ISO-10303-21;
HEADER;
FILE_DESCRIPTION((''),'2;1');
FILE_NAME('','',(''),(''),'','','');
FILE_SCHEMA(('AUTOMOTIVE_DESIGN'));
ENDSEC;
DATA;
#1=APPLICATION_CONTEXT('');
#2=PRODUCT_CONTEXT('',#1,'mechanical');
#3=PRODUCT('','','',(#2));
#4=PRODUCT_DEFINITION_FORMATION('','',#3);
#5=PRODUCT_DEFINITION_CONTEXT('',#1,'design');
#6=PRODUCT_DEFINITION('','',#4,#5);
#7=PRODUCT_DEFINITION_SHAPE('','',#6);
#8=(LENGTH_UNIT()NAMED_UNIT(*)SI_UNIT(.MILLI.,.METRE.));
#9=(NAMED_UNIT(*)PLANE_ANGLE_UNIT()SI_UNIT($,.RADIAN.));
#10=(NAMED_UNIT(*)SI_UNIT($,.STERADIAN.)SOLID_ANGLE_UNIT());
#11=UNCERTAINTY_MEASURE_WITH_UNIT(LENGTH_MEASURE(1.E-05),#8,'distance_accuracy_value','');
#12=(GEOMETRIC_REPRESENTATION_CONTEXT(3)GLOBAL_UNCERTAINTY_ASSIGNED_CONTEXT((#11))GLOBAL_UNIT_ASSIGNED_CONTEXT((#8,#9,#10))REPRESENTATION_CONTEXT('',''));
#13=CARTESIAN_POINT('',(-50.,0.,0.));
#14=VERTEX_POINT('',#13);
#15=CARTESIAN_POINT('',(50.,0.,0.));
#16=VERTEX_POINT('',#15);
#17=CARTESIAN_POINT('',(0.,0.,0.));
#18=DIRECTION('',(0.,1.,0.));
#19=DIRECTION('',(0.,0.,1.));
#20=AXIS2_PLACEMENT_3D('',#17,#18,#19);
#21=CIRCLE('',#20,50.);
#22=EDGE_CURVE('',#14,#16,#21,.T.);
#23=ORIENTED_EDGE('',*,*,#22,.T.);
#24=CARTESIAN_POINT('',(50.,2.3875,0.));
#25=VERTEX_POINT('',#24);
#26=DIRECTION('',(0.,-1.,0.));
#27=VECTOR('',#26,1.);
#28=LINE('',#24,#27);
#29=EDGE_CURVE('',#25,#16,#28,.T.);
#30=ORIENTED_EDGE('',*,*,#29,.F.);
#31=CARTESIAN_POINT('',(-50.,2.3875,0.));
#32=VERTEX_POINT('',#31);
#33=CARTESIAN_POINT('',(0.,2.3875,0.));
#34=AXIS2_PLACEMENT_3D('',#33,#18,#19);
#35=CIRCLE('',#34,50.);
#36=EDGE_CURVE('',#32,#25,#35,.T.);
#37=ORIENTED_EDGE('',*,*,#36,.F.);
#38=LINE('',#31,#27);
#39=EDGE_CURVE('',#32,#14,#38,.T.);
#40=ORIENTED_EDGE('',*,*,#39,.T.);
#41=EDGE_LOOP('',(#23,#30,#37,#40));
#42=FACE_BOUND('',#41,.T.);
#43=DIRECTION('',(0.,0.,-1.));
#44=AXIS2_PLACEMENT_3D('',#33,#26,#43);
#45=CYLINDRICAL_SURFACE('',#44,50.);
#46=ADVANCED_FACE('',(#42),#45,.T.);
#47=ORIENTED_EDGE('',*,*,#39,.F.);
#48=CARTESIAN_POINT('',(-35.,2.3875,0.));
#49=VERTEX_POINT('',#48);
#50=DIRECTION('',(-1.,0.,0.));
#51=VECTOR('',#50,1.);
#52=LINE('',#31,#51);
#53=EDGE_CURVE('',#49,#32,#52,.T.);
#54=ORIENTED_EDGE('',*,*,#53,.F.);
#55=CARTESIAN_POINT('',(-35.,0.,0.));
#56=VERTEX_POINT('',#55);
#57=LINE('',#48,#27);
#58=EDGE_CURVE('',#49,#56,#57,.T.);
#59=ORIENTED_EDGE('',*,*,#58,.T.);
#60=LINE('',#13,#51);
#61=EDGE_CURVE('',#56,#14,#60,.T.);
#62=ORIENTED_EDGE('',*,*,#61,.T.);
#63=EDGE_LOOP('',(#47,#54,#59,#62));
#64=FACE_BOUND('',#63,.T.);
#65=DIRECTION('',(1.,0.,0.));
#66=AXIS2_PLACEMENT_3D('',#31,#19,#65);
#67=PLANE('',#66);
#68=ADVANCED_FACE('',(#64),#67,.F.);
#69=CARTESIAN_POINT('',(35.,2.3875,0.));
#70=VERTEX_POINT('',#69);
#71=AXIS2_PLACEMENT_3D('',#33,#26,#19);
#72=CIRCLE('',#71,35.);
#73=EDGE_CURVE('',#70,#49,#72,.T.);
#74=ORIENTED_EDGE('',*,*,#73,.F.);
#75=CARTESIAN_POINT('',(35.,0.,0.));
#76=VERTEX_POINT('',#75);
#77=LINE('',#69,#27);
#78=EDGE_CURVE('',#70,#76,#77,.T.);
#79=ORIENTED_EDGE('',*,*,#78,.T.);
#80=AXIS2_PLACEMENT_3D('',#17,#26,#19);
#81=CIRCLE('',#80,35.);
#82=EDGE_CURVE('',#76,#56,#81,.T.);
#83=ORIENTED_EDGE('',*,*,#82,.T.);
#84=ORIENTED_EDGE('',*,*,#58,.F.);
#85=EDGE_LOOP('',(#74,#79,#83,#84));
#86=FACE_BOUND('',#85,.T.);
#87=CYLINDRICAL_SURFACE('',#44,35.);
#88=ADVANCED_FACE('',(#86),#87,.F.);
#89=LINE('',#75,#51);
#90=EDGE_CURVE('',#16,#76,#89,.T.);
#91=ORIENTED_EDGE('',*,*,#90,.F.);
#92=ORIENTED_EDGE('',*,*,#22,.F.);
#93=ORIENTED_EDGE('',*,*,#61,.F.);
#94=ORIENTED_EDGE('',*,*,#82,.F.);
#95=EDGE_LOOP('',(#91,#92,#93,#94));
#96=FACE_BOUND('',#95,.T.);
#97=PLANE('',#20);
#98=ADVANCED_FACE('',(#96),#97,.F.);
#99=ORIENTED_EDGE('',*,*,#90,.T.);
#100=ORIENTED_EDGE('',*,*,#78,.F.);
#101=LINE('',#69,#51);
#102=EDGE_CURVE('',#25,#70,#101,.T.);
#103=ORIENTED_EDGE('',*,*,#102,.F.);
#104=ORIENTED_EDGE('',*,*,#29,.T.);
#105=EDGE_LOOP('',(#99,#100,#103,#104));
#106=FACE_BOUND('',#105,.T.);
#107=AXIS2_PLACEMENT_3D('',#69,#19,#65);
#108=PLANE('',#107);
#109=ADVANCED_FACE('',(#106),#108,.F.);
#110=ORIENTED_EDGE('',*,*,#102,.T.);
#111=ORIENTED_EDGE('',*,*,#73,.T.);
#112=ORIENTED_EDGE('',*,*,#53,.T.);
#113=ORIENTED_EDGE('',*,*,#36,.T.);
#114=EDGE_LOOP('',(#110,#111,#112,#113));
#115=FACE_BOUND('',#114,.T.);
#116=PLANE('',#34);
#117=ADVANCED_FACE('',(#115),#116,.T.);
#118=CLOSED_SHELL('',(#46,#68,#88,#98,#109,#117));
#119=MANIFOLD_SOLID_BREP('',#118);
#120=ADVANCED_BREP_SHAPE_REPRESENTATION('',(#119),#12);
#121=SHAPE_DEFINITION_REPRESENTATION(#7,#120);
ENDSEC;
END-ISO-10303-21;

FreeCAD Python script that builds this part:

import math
import FreeCAD as App
import Part
import Sketcher

V = App.Vector

doc = App.newDocument("Part")
body = doc.addObject("PartDesign::Body", "Body")

sketch1 = body.newObject("Sketcher::SketchObject", "Sketch")
sketch1.AttachmentSupport = (doc.getObject("XZ_Plane"), [""])
sketch1.MapMode = "FlatFace"
sketch1.addGeometry(Part.LineSegment(V(-35, 0, 0), V(-50, 0, 0)), False)
sketch1.addGeometry(Part.ArcOfCircle(Part.Circle(V(0, 0, 0), V(0, 0, 1), 50), math.radians(0), math.radians(180)), False)
sketch1.addGeometry(Part.LineSegment(V(50, 0, 0), V(35, 0, 0)), False)
sketch1.addGeometry(Part.ArcOfCircle(Part.Circle(V(0, 0, 0), V(0, 0, 1), 35), math.radians(0), math.radians(180)), False)
sketch1.addConstraint(Sketcher.Constraint("Coincident", 0, 2, 1, 2))
sketch1.addConstraint(Sketcher.Constraint("Coincident", 1, 1, 2, 1))
sketch1.addConstraint(Sketcher.Constraint("Coincident", 2, 2, 3, 1))
sketch1.addConstraint(Sketcher.Constraint("Coincident", 3, 2, 0, 1))
sketch1.addConstraint(Sketcher.Constraint("Horizontal", 0))
sketch1.addConstraint(Sketcher.Constraint("Horizontal", 2))
sketch1.addConstraint(Sketcher.Constraint("Coincident", 1, 3, -1, 1))
sketch1.addConstraint(Sketcher.Constraint("Coincident", 3, 3, -1, 1))
sketch1.addConstraint(Sketcher.Constraint("PointOnObject", 0, 2, -1))
sketch1.addConstraint(Sketcher.Constraint("PointOnObject", 1, 1, -1))
sketch1.addConstraint(Sketcher.Constraint("Radius", 1, 50.0))
sketch1.addConstraint(Sketcher.Constraint("Radius", 3, 35.0))
pad1 = body.newObject("PartDesign::Pad", "Pad")
pad1.Profile = sketch1
pad1.Length = 2.3875
pad1.Reversed = True

doc.recompute()
